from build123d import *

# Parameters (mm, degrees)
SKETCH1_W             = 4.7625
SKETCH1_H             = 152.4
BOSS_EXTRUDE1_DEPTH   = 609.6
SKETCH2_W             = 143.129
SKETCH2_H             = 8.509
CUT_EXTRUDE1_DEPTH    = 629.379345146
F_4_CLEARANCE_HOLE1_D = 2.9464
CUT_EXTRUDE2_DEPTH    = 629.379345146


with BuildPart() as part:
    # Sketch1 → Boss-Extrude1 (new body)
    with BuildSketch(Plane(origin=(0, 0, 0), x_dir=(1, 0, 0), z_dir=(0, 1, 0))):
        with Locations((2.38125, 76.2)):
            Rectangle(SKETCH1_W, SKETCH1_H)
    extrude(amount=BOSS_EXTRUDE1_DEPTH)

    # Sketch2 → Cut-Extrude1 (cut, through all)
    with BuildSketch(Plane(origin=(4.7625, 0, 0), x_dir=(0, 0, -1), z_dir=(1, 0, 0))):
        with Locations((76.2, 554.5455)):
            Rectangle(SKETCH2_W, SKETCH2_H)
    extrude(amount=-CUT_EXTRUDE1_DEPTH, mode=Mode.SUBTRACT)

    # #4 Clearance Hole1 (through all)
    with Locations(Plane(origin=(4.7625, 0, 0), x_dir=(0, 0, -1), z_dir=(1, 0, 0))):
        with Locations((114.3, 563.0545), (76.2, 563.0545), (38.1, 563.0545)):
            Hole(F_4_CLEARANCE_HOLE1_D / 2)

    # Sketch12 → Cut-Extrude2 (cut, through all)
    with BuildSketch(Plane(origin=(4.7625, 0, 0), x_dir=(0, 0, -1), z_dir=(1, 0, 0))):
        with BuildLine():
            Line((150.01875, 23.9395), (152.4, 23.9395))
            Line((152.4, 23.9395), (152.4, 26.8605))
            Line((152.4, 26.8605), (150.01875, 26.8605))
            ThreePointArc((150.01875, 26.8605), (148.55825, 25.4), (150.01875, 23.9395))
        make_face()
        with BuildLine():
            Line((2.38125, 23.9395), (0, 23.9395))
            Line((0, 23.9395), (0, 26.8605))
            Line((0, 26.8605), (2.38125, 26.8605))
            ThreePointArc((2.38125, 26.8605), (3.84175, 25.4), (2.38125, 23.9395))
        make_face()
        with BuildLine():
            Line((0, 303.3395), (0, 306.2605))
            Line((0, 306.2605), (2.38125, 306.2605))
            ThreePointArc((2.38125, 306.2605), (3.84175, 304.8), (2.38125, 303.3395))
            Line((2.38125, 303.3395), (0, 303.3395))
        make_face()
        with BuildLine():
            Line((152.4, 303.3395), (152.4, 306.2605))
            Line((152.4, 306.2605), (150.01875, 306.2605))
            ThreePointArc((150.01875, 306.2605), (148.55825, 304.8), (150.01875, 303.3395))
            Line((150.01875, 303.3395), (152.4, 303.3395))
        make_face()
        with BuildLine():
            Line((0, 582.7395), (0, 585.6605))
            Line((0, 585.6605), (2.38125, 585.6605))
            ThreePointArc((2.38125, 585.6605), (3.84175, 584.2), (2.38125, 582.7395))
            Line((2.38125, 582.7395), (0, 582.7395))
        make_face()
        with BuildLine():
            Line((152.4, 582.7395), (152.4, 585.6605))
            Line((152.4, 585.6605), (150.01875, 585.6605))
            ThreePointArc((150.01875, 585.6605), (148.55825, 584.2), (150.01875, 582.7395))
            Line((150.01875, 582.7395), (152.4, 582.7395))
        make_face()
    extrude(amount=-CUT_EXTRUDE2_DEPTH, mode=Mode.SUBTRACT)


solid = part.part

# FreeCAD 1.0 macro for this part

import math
import FreeCAD as App
import Part
import Sketcher
from FreeCAD import Vector
Q = App.Units.Quantity


def add_polygon(sketch, points):
    """Adds a closed chain of lines whose ends are joined by coincident constraints."""
    first, n = sketch.GeometryCount, len(points)
    for a, b in zip(points, points[1:] + points[:1]):
        sketch.addGeometry(Part.LineSegment(App.Vector(*a, 0), App.Vector(*b, 0)), False)
    for i in range(n):
        sketch.addConstraint(Sketcher.Constraint("Coincident", first + i, 2, first + (i + 1) % n, 1))

doc = App.newDocument("Part")
body = doc.addObject("PartDesign::Body", "Body")

sketch1 = body.newObject("Sketcher::SketchObject", "Sketch")
sketch1.AttachmentSupport = (doc.getObject("XZ_Plane"), [""])
sketch1.MapMode = "FlatFace"
add_polygon(sketch1, [(0, -152.4), (0, 0), (4.8, 0), (4.8, -152.4)])
sketch1.addConstraint([
    Sketcher.Constraint("Vertical", 0),
    Sketcher.Constraint("Horizontal", 1),
    Sketcher.Constraint("Vertical", 2),
    Sketcher.Constraint("Horizontal", 3),
    Sketcher.Constraint("Coincident", 0, 2, -1, 1),
    Sketcher.Constraint("DistanceY", 0, 1, 0, 2, Q("6 in")),
    Sketcher.Constraint("DistanceX", 1, 1, 1, 2, Q("0.1875 in")),
])
pad1 = body.newObject("PartDesign::Pad", "Pad")
pad1.Profile = sketch1
pad1.Length = Q("24 in")
pad1.Reversed = True

sketch2 = body.newObject("Sketcher::SketchObject", "Sketch001")
sketch2.AttachmentSupport = (doc.getObject("YZ_Plane"), [""])
sketch2.MapMode = "FlatFace"
sketch2.AttachmentOffset = App.Placement(Vector(0, 0, 0.1875 * 25.4), App.Rotation())
add_polygon(sketch2, [(559, -5), (550, -5), (550, -148), (559, -148)])
sketch2.addConstraint([
    Sketcher.Constraint("Horizontal", 0),
    Sketcher.Constraint("Vertical", 1),
    Sketcher.Constraint("Horizontal", 2),
    Sketcher.Constraint("Vertical", 3),
    Sketcher.Constraint("DistanceX", -1, 1, 2, 2, Q("22 in")),
    Sketcher.Constraint("DistanceX", 0, 2, 0, 1, Q("0.335 in")),
    Sketcher.Constraint("DistanceY", 1, 2, 1, 1, Q("5.635 in")),
    Sketcher.Constraint("DistanceY", 0, 2, -1, 1, Q("0.1825 in")),
])
pocket1 = body.newObject("PartDesign::Pocket", "Pocket")
pocket1.Profile = sketch2
pocket1.Type = "ThroughAll"

sketch3 = body.newObject("Sketcher::SketchObject", "Sketch002")
sketch3.AttachmentSupport = (doc.getObject("YZ_Plane"), [""])
sketch3.MapMode = "FlatFace"
sketch3.AttachmentOffset = App.Placement(Vector(0, 0, 0.1875 * 25.4), App.Rotation())
sketch3.addGeometry([
    Part.Circle(Vector(563.1, -114.3, 0), Vector(0, 0, 1), 1.5),
    Part.Circle(Vector(563.1, -76.2, 0), Vector(0, 0, 1), 1.5),
    Part.Circle(Vector(563.1, -38.1, 0), Vector(0, 0, 1), 1.5),
], False)
sketch3.addConstraint([
    Sketcher.Constraint("Equal", 0, 1),
    Sketcher.Constraint("Equal", 1, 2),
    Sketcher.Constraint("Vertical", 0, 3, 1, 3),
    Sketcher.Constraint("Vertical", 1, 3, 2, 3),
    Sketcher.Constraint("Diameter", 0, Q("0.116 in")),
    Sketcher.Constraint("DistanceY", 1, 3, -1, 1, Q("3 in")),
    Sketcher.Constraint("DistanceY", 0, 3, 2, 3, Q("3 in")),
    Sketcher.Constraint("DistanceY", 0, 3, -1, 1, Q("4.5 in")),
    Sketcher.Constraint("DistanceX", -1, 1, 0, 3, Q("22.1675 in")),
])
doc.recompute()
hole = body.newObject("PartDesign::Hole", "Hole")
hole.Profile = sketch3
hole.ThreadType = "None"
hole.Diameter = Q("0.116 in")
hole.DepthType = "ThroughAll"

sketch4 = body.newObject("Sketcher::SketchObject", "Sketch003")
sketch4.AttachmentSupport = (doc.getObject("YZ_Plane"), [""])
sketch4.MapMode = "FlatFace"
sketch4.AttachmentOffset = App.Placement(Vector(0, 0, 0.1875 * 25.4), App.Rotation())
sketch4.addGeometry([
    Part.LineSegment(Vector(23.9, -150, 0), Vector(23.9, -152.4, 0)),
    Part.LineSegment(Vector(23.9, -152.4, 0), Vector(26.9, -152.4, 0)),
    Part.LineSegment(Vector(26.9, -152.4, 0), Vector(26.9, -150, 0)),
    Part.ArcOfCircle(Part.Circle(Vector(25.4, -150, 0), Vector(0, 0, 1), 1.5), math.radians(0), math.radians(180)),
    Part.LineSegment(Vector(23.9, 0, 0), Vector(23.9, -2.4, 0)),
    Part.ArcOfCircle(Part.Circle(Vector(25.4, -2.4, 0), Vector(0, 0, 1), 1.5), math.radians(180), math.radians(360)),
    Part.LineSegment(Vector(26.9, -2.4, 0), Vector(26.9, 0, 0)),
    Part.LineSegment(Vector(26.9, 0, 0), Vector(23.9, 0, 0)),
    Part.LineSegment(Vector(306.3, 0, 0), Vector(303.3, 0, 0)),
    Part.LineSegment(Vector(303.3, 0, 0), Vector(303.3, -2.4, 0)),
    Part.ArcOfCircle(Part.Circle(Vector(304.8, -2.4, 0), Vector(0, 0, 1), 1.5), math.radians(180), math.radians(360)),
    Part.LineSegment(Vector(306.3, -2.4, 0), Vector(306.3, 0, 0)),
    Part.LineSegment(Vector(303.3, -152.4, 0), Vector(306.3, -152.4, 0)),
    Part.LineSegment(Vector(306.3, -152.4, 0), Vector(306.3, -150, 0)),
    Part.ArcOfCircle(Part.Circle(Vector(304.8, -150, 0), Vector(0, 0, 1), 1.5), math.radians(0), math.radians(180)),
    Part.LineSegment(Vector(303.3, -150, 0), Vector(303.3, -152.4, 0)),
    Part.LineSegment(Vector(585.7, 0, 0), Vector(582.7, 0, 0)),
    Part.LineSegment(Vector(582.7, 0, 0), Vector(582.7, -2.4, 0)),
    Part.ArcOfCircle(Part.Circle(Vector(584.2, -2.4, 0), Vector(0, 0, 1), 1.5), math.radians(180), math.radians(360)),
    Part.LineSegment(Vector(585.7, -2.4, 0), Vector(585.7, 0, 0)),
    Part.LineSegment(Vector(582.7, -152.4, 0), Vector(585.7, -152.4, 0)),
    Part.LineSegment(Vector(585.7, -152.4, 0), Vector(585.7, -150, 0)),
    Part.ArcOfCircle(Part.Circle(Vector(584.2, -150, 0), Vector(0, 0, 1), 1.5), math.radians(0), math.radians(180)),
    Part.LineSegment(Vector(582.7, -150, 0), Vector(582.7, -152.4, 0)),
], False)
sketch4.addConstraint([
    Sketcher.Constraint("Coincident", 0, 2, 1, 1),
    Sketcher.Constraint("Coincident", 1, 2, 2, 1),
    Sketcher.Constraint("Tangent", 2, 2, 3, 1),
    Sketcher.Constraint("Tangent", 3, 2, 0, 1),
    Sketcher.Constraint("Tangent", 4, 2, 5, 1),
    Sketcher.Constraint("Tangent", 5, 2, 6, 1),
    Sketcher.Constraint("Coincident", 6, 2, 7, 1),
    Sketcher.Constraint("Coincident", 7, 2, 4, 1),
    Sketcher.Constraint("Coincident", 8, 2, 9, 1),
    Sketcher.Constraint("Tangent", 9, 2, 10, 1),
    Sketcher.Constraint("Tangent", 10, 2, 11, 1),
    Sketcher.Constraint("Coincident", 11, 2, 8, 1),
    Sketcher.Constraint("Coincident", 12, 2, 13, 1),
    Sketcher.Constraint("Tangent", 13, 2, 14, 1),
    Sketcher.Constraint("Tangent", 14, 2, 15, 1),
    Sketcher.Constraint("Coincident", 15, 2, 12, 1),
    Sketcher.Constraint("Coincident", 16, 2, 17, 1),
    Sketcher.Constraint("Tangent", 17, 2, 18, 1),
    Sketcher.Constraint("Tangent", 18, 2, 19, 1),
    Sketcher.Constraint("Coincident", 19, 2, 16, 1),
    Sketcher.Constraint("Coincident", 20, 2, 21, 1),
    Sketcher.Constraint("Tangent", 21, 2, 22, 1),
    Sketcher.Constraint("Tangent", 22, 2, 23, 1),
    Sketcher.Constraint("Coincident", 23, 2, 20, 1),
    Sketcher.Constraint("Vertical", 0),
    Sketcher.Constraint("Horizontal", 1),
    Sketcher.Constraint("Vertical", 2),
    Sketcher.Constraint("Vertical", 4),
    Sketcher.Constraint("Vertical", 6),
    Sketcher.Constraint("Horizontal", 7),
    Sketcher.Constraint("Horizontal", 8),
    Sketcher.Constraint("Vertical", 9),
    Sketcher.Constraint("Vertical", 11),
    Sketcher.Constraint("Horizontal", 12),
    Sketcher.Constraint("Vertical", 13),
    Sketcher.Constraint("Vertical", 15),
    Sketcher.Constraint("Horizontal", 16),
    Sketcher.Constraint("Vertical", 17),
    Sketcher.Constraint("Vertical", 19),
    Sketcher.Constraint("Horizontal", 20),
    Sketcher.Constraint("Vertical", 21),
    Sketcher.Constraint("Vertical", 23),
    Sketcher.Constraint("Equal", 3, 5),
    Sketcher.Constraint("Equal", 5, 10),
    Sketcher.Constraint("Equal", 10, 14),
    Sketcher.Constraint("Equal", 14, 18),
    Sketcher.Constraint("Equal", 18, 22),
    Sketcher.Constraint("PointOnObject", 6, 2, -1),
    Sketcher.Constraint("PointOnObject", 8, 2, -1),
    Sketcher.Constraint("PointOnObject", 16, 2, -1),
    Sketcher.Constraint("Horizontal", 5, 3, 10, 3),
    Sketcher.Constraint("Horizontal", 3, 3, 14, 3),
    Sketcher.Constraint("Horizontal", 10, 3, 18, 3),
    Sketcher.Constraint("Horizontal", 14, 3, 22, 3),
    Sketcher.Constraint("Horizontal", 1, 2, 12, 2),
    Sketcher.Constraint("Horizontal", 15, 2, 20, 2),
    Sketcher.Constraint("Vertical", 3, 3, 5, 3),
    Sketcher.Constraint("Vertical", 10, 3, 14, 3),
    Sketcher.Constraint("Vertical", 18, 3, 22, 3),
    Sketcher.Constraint("Equal", 2, 4),
    Sketcher.Constraint("DistanceX", -1, 1, 3, 3, Q("1 in")),
    Sketcher.Constraint("DistanceX", -1, 1, 10, 3, Q("12 in")),
    Sketcher.Constraint("DistanceX", -1, 1, 18, 3, Q("23 in")),
    Sketcher.Constraint("DistanceY", 0, 2, -1, 1, Q("6 in")),
    Sketcher.Constraint("Radius", 3, Q("0.0575 in")),
    Sketcher.Constraint("DistanceY", 0, 2, 0, 1, Q("0.09375 in")),
])
pocket2 = body.newObject("PartDesign::Pocket", "Pocket001")
pocket2.Profile = sketch4
pocket2.Type = "ThroughAll"

doc.recompute()
